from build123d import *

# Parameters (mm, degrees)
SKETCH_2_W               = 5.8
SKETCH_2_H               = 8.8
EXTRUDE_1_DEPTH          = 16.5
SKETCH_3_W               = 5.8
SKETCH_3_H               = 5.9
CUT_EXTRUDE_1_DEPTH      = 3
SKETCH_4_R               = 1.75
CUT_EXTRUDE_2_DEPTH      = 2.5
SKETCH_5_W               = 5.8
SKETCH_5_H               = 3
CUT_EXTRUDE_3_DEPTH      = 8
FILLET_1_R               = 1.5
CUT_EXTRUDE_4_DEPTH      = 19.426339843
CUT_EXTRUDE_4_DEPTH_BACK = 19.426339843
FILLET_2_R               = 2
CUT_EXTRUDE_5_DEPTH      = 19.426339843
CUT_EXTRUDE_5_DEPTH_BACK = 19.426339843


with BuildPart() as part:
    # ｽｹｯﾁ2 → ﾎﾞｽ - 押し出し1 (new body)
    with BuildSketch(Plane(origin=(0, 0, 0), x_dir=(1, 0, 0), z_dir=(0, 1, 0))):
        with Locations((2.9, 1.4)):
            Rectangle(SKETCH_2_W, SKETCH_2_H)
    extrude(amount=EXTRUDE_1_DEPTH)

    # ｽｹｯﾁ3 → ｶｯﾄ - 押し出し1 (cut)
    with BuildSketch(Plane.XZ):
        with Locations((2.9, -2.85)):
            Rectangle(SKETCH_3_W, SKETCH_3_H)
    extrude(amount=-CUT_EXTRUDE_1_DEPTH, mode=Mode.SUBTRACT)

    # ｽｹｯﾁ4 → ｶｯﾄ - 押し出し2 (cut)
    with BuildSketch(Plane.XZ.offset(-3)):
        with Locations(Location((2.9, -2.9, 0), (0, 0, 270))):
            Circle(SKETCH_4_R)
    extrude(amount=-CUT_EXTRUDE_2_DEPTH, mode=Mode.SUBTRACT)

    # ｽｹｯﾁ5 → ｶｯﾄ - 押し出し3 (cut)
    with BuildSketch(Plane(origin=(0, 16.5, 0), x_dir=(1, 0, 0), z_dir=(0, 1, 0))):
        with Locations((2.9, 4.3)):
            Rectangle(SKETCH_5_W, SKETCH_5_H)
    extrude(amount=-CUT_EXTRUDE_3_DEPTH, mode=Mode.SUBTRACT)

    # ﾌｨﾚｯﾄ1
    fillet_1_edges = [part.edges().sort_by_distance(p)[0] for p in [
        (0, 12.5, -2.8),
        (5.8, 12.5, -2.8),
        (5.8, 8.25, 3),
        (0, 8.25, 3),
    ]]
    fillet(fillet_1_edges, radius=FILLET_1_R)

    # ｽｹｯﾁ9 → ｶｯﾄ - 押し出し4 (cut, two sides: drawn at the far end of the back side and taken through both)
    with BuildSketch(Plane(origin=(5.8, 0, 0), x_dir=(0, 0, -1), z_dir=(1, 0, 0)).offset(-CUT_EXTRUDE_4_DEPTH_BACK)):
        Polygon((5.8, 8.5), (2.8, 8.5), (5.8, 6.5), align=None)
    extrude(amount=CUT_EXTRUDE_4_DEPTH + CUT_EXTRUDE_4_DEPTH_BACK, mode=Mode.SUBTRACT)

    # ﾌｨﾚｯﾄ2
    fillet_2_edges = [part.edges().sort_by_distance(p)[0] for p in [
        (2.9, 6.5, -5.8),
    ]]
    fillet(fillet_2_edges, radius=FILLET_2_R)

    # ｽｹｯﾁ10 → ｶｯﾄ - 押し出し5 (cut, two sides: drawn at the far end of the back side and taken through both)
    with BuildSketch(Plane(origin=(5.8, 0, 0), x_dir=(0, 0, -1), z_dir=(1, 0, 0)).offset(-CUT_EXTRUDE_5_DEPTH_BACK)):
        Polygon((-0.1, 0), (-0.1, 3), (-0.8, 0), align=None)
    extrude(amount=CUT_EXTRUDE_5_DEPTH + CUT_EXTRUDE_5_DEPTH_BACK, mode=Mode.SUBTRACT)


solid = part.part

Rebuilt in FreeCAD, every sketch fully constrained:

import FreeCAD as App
import Part
import Sketcher
from FreeCAD import Vector
Q = App.Units.Quantity


def edges_at(feature, points):
    """Names of the edges that pass closest to the given points."""
    edges = feature.Shape.Edges
    near = lambda p: min(range(len(edges)), key=lambda i: edges[i].distToShape(Part.Vertex(*p))[0])
    return sorted({f"Edge{near(p) + 1}" for p in points})

doc = App.newDocument("Part")
params = doc.addObject("Spreadsheet::Sheet", "Params")
for row, (alias, value) in enumerate([
    ("sketch1_width", "5.8 mm"),
    ("sketch1_height", "8.8 mm"),
    ("pad1_length", "16.5 mm"),
    ("sketch2_width", "5.8 mm"),
    ("sketch2_height", "5.9 mm"),
    ("pocket1_length", "3 mm"),
    ("sketch3_diameter", "3.5 mm"),
    ("pocket2_length", "2.5 mm"),
    ("sketch4_height", "3 mm"),
    ("sketch4_width", "5.8 mm"),
    ("pocket3_length", "8 mm"),
    ("fillet_radius", "1.5 mm"),
    ("sketch5_width", "2 mm"),
    ("sketch5_height", "3 mm"),
    ("fillet2_radius", "2 mm"),
    ("sketch6_width", "3 mm"),
    ("sketch6_height", "0.7 mm"),
], start=1):
    params.set(f"A{row}", alias)
    params.set(f"B{row}", "=" + value)
    params.setAlias(f"B{row}", alias)

body = doc.addObject("PartDesign::Body", "Body")

# Sketch on XZ plane
sketch1 = doc.addObject("Sketcher::SketchObject", "Sketch")
body.addObject(sketch1)
sketch1.AttachmentSupport = (doc.XZ_Plane, [""])
sketch1.MapMode = "FlatFace"
sketch1.addGeometry([
    Part.LineSegment(Vector(0, -5.8, 0), Vector(0, 3, 0)),
    Part.LineSegment(Vector(0, 3, 0), Vector(5.8, 3, 0)),
    Part.LineSegment(Vector(5.8, 3, 0), Vector(5.8, -5.8, 0)),
    Part.LineSegment(Vector(5.8, -5.8, 0), Vector(0, -5.8, 0)),
], False)
sketch1.addConstraint([
    Sketcher.Constraint("Coincident", 0, 2, 1, 1),
    Sketcher.Constraint("Coincident", 1, 2, 2, 1),
    Sketcher.Constraint("Coincident", 2, 2, 3, 1),
    Sketcher.Constraint("Coincident", 3, 2, 0, 1),
    Sketcher.Constraint("Vertical", 0),
    Sketcher.Constraint("Horizontal", 1),
    Sketcher.Constraint("Vertical", 2),
    Sketcher.Constraint("Horizontal", 3),
    Sketcher.Constraint("PointOnObject", 0, 2, -2),
    Sketcher.Constraint("DistanceX", 1, 1, 1, 2, Q("5.8 mm")),
    Sketcher.Constraint("DistanceY", 0, 1, 0, 2, Q("8.8 mm")),
    Sketcher.Constraint("DistanceY", -1, 1, 0, 2, Q("3 mm")),
])
sketch1.setExpression("Constraints[9]", "Params.sketch1_width")
sketch1.setExpression("Constraints[10]", "Params.sketch1_height")
pad1 = doc.addObject("PartDesign::Pad", "Pad")
body.addObject(pad1)
pad1.Profile = sketch1
pad1.setExpression("Length", "Params.pad1_length")
pad1.Reversed = True

# Sketch on XZ plane
sketch2 = doc.addObject("Sketcher::SketchObject", "Sketch001")
body.addObject(sketch2)
sketch2.AttachmentSupport = (doc.XZ_Plane, [""])
sketch2.MapMode = "FlatFace"
sketch2.addGeometry([
    Part.LineSegment(Vector(0, 0.1, 0), Vector(0, -5.8, 0)),
    Part.LineSegment(Vector(0, -5.8, 0), Vector(5.8, -5.8, 0)),
    Part.LineSegment(Vector(5.8, -5.8, 0), Vector(5.8, 0.1, 0)),
    Part.LineSegment(Vector(5.8, 0.1, 0), Vector(0, 0.1, 0)),
], False)
sketch2.addConstraint([
    Sketcher.Constraint("Coincident", 0, 2, 1, 1),
    Sketcher.Constraint("Coincident", 1, 2, 2, 1),
    Sketcher.Constraint("Coincident", 2, 2, 3, 1),
    Sketcher.Constraint("Coincident", 3, 2, 0, 1),
    Sketcher.Constraint("Vertical", 0),
    Sketcher.Constraint("Horizontal", 1),
    Sketcher.Constraint("Vertical", 2),
    Sketcher.Constraint("Horizontal", 3),
    Sketcher.Constraint("PointOnObject", 0, 2, -2),
    Sketcher.Constraint("DistanceX", 1, 1, 1, 2, Q("5.8 mm")),
    Sketcher.Constraint("DistanceY", 0, 2, 0, 1, Q("5.9 mm")),
    Sketcher.Constraint("DistanceY", 0, 2, -1, 1, Q("5.8 mm")),
])
sketch2.setExpression("Constraints[9]", "Params.sketch2_width")
sketch2.setExpression("Constraints[10]", "Params.sketch2_height")
pocket1 = doc.addObject("PartDesign::Pocket", "Pocket")
body.addObject(pocket1)
pocket1.Profile = sketch2
pocket1.setExpression("Length", "Params.pocket1_length")

# Sketch on XZ plane
sketch3 = doc.addObject("Sketcher::SketchObject", "Sketch002")
body.addObject(sketch3)
sketch3.AttachmentSupport = (doc.XZ_Plane, [""])
sketch3.MapMode = "FlatFace"
sketch3.AttachmentOffset = App.Placement(Vector(0, 0, -3), App.Rotation())
sketch3.addGeometry(Part.Circle(Vector(2.9, -2.9, 0), Vector(0, 0, 1), 1.75), False)
sketch3.addConstraint([
    Sketcher.Constraint("Diameter", 0, Q("3.5 mm")),
    Sketcher.Constraint("DistanceX", -1, 1, 0, 3, Q("2.9 mm")),
    Sketcher.Constraint("DistanceY", 0, 3, -1, 1, Q("2.9 mm")),
])
sketch3.setExpression("Constraints[0]", "Params.sketch3_diameter")
pocket2 = doc.addObject("PartDesign::Pocket", "Pocket001")
body.addObject(pocket2)
pocket2.Profile = sketch3
pocket2.setExpression("Length", "Params.pocket2_length")

# Sketch on XZ plane
sketch4 = doc.addObject("Sketcher::SketchObject", "Sketch003")
body.addObject(sketch4)
sketch4.AttachmentSupport = (doc.XZ_Plane, [""])
sketch4.MapMode = "FlatFace"
sketch4.AttachmentOffset = App.Placement(Vector(0, 0, -16.5), App.Rotation())
sketch4.addGeometry([
    Part.LineSegment(Vector(0, -5.8, 0), Vector(0, -2.8, 0)),
    Part.LineSegment(Vector(0, -2.8, 0), Vector(5.8, -2.8, 0)),
    Part.LineSegment(Vector(5.8, -2.8, 0), Vector(5.8, -5.8, 0)),
    Part.LineSegment(Vector(5.8, -5.8, 0), Vector(0, -5.8, 0)),
], False)
sketch4.addConstraint([
    Sketcher.Constraint("Coincident", 0, 2, 1, 1),
    Sketcher.Constraint("Coincident", 1, 2, 2, 1),
    Sketcher.Constraint("Coincident", 2, 2, 3, 1),
    Sketcher.Constraint("Coincident", 3, 2, 0, 1),
    Sketcher.Constraint("Vertical", 0),
    Sketcher.Constraint("Horizontal", 1),
    Sketcher.Constraint("Vertical", 2),
    Sketcher.Constraint("Horizontal", 3),
    Sketcher.Constraint("PointOnObject", 0, 2, -2),
    Sketcher.Constraint("DistanceY", 0, 1, 0, 2, Q("3 mm")),
    Sketcher.Constraint("DistanceX", 1, 1, 1, 2, Q("5.8 mm")),
    Sketcher.Constraint("DistanceY", 0, 2, -1, 1, Q("2.8 mm")),
])
sketch4.setExpression("Constraints[9]", "Params.sketch4_height")
sketch4.setExpression("Constraints[10]", "Params.sketch4_width")
pocket3 = doc.addObject("PartDesign::Pocket", "Pocket002")
body.addObject(pocket3)
pocket3.Profile = sketch4
pocket3.setExpression("Length", "Params.pocket3_length")
pocket3.Reversed = True
doc.recompute()

fillet = doc.addObject("PartDesign::Fillet", "Fillet")
body.addObject(fillet)
fillet.Base = (pocket3, edges_at(pocket3, [
    (0, 12.5, -2.8),
    (5.8, 12.5, -2.8),
    (5.8, 8.25, 3),
    (0, 8.25, 3),
]))
fillet.setExpression("Radius", "Params.fillet_radius")

# Sketch on YZ plane
sketch5 = doc.addObject("Sketcher::SketchObject", "Sketch004")
body.addObject(sketch5)
sketch5.AttachmentSupport = (doc.YZ_Plane, [""])
sketch5.MapMode = "FlatFace"
sketch5.AttachmentOffset = App.Placement(Vector(0, 0, 5.8), App.Rotation())
sketch5.addGeometry([
    Part.LineSegment(Vector(8.5, -5.8, 0), Vector(8.5, -2.8, 0)),
    Part.LineSegment(Vector(8.5, -2.8, 0), Vector(6.5, -5.8, 0)),
    Part.LineSegment(Vector(6.5, -5.8, 0), Vector(8.5, -5.8, 0)),
], False)
sketch5.addConstraint([
    Sketcher.Constraint("Coincident", 0, 2, 1, 1),
    Sketcher.Constraint("Coincident", 1, 2, 2, 1),
    Sketcher.Constraint("Coincident", 2, 2, 0, 1),
    Sketcher.Constraint("Vertical", 0),
    Sketcher.Constraint("Horizontal", 2),
    Sketcher.Constraint("DistanceX", 2, 1, 2, 2, Q("2 mm")),
    Sketcher.Constraint("DistanceY", 0, 1, 0, 2, Q("3 mm")),
    Sketcher.Constraint("DistanceX", -1, 1, 0, 2, Q("8.5 mm")),
    Sketcher.Constraint("DistanceY", 0, 2, -1, 1, Q("2.8 mm")),
])
sketch5.setExpression("Constraints[5]", "Params.sketch5_width")
sketch5.setExpression("Constraints[6]", "Params.sketch5_height")
pocket4 = doc.addObject("PartDesign::Pocket", "Pocket003")
body.addObject(pocket4)
pocket4.Profile = sketch5
pocket4.Type = "ThroughAll"
pocket4.Midplane = True
doc.recompute()

fillet2 = doc.addObject("PartDesign::Fillet", "Fillet001")
body.addObject(fillet2)
fillet2.Base = (pocket4, edges_at(pocket4, [(2.9, 6.5, -5.8)]))
fillet2.setExpression("Radius", "Params.fillet2_radius")

# Sketch on YZ plane
sketch6 = doc.addObject("Sketcher::SketchObject", "Sketch005")
body.addObject(sketch6)
sketch6.AttachmentSupport = (doc.YZ_Plane, [""])
sketch6.MapMode = "FlatFace"
sketch6.AttachmentOffset = App.Placement(Vector(0, 0, 5.8), App.Rotation())
sketch6.addGeometry([
    Part.LineSegment(Vector(0, 0.1, 0), Vector(3, 0.1, 0)),
    Part.LineSegment(Vector(3, 0.1, 0), Vector(0, 0.8, 0)),
    Part.LineSegment(Vector(0, 0.8, 0), Vector(0, 0.1, 0)),
], False)
sketch6.addConstraint([
    Sketcher.Constraint("Coincident", 0, 2, 1, 1),
    Sketcher.Constraint("Coincident", 1, 2, 2, 1),
    Sketcher.Constraint("Coincident", 2, 2, 0, 1),
    Sketcher.Constraint("Horizontal", 0),
    Sketcher.Constraint("Vertical", 2),
    Sketcher.Constraint("PointOnObject", 1, 2, -2),
    Sketcher.Constraint("DistanceX", 0, 1, 0, 2, Q("3 mm")),
    Sketcher.Constraint("DistanceY", 2, 2, 2, 1, Q("0.7 mm")),
    Sketcher.Constraint("DistanceY", -1, 1, 0, 2, Q("0.1 mm")),
])
sketch6.setExpression("Constraints[6]", "Params.sketch6_width")
sketch6.setExpression("Constraints[7]", "Params.sketch6_height")
pocket5 = doc.addObject("PartDesign::Pocket", "Pocket004")
body.addObject(pocket5)
pocket5.Profile = sketch6
pocket5.Type = "ThroughAll"
pocket5.Midplane = True

doc.recompute()
